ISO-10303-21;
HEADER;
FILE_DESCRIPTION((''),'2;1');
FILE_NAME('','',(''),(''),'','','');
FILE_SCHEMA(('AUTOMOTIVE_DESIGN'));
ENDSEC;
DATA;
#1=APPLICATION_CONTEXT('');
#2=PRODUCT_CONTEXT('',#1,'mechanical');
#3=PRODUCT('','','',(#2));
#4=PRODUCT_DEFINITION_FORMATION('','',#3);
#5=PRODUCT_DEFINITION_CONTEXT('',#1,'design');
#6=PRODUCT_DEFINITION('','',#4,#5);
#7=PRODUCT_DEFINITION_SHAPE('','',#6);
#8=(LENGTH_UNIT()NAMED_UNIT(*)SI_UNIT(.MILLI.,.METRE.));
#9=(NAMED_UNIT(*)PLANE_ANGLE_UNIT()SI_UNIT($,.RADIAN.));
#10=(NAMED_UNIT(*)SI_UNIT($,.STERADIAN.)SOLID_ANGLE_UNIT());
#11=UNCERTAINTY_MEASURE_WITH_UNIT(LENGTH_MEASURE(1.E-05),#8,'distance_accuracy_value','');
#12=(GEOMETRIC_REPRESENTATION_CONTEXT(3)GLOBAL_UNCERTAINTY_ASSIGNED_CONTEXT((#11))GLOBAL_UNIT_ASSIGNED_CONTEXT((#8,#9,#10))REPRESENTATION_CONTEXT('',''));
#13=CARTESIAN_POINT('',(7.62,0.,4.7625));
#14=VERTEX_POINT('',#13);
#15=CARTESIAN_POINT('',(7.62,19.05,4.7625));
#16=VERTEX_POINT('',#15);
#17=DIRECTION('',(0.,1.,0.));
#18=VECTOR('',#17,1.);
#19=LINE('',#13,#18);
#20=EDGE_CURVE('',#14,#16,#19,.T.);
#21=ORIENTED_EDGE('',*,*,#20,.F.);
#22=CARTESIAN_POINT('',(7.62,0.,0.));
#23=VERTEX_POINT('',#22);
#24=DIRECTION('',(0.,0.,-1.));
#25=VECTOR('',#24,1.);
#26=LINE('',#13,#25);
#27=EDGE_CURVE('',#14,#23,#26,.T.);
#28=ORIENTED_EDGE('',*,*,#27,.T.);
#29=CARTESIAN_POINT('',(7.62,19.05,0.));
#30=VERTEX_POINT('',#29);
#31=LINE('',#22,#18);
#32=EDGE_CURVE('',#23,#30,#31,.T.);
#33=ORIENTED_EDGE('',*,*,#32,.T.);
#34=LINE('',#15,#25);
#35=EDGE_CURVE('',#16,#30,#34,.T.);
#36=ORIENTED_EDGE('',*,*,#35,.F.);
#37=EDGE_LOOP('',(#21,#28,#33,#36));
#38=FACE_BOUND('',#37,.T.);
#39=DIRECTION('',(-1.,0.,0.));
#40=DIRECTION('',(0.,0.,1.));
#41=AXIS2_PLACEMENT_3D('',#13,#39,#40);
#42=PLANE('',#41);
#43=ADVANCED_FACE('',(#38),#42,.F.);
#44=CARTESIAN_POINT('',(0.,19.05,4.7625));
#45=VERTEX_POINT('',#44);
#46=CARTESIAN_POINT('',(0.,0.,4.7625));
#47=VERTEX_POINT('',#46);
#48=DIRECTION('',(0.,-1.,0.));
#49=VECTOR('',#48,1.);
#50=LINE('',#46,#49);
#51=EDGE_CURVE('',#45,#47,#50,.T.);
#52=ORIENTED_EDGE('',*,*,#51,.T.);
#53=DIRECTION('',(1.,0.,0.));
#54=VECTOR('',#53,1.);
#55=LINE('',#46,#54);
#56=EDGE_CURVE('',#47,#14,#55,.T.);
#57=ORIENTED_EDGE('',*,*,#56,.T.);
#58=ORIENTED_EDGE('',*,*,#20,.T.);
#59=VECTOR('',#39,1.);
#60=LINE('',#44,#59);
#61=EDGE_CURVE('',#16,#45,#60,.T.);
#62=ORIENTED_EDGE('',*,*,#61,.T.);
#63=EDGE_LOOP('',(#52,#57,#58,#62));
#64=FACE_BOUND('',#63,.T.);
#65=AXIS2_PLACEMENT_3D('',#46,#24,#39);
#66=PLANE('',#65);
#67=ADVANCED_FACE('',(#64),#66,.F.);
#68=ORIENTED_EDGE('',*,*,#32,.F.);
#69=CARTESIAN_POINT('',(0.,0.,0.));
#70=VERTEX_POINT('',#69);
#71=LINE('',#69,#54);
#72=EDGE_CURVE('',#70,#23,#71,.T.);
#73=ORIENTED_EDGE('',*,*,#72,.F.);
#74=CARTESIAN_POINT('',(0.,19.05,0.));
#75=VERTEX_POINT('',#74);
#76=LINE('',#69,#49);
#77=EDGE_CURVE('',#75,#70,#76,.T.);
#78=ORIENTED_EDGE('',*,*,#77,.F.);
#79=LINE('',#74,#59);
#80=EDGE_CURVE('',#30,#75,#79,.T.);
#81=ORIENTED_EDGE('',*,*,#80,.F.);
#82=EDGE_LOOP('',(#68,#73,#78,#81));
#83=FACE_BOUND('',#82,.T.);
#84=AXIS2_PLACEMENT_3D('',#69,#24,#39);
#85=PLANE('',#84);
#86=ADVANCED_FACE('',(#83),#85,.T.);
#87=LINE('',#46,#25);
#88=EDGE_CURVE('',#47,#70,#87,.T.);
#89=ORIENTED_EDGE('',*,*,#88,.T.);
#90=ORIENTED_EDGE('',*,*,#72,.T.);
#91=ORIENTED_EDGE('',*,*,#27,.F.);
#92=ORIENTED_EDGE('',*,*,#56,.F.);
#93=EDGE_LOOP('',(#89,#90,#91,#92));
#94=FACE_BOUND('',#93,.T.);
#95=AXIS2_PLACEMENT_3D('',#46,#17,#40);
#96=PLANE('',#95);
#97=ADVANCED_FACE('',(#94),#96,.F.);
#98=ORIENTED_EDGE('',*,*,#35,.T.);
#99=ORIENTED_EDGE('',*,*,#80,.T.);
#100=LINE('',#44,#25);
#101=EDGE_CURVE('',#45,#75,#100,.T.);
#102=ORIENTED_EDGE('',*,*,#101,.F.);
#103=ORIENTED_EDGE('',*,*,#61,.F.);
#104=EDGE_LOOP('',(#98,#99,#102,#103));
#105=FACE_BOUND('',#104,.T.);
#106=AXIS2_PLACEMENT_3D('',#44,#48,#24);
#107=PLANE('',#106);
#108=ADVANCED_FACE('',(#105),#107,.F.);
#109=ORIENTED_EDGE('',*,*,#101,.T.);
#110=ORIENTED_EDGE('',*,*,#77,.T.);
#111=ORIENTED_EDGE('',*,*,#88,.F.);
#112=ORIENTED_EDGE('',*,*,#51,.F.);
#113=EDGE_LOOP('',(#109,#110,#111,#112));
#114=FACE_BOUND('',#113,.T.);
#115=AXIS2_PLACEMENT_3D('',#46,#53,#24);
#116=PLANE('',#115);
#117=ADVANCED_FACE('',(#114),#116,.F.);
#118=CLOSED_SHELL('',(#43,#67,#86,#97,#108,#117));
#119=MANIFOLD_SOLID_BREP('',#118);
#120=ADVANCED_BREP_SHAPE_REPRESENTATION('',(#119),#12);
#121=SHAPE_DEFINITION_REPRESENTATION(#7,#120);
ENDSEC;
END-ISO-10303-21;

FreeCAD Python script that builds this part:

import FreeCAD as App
import Part
import Sketcher
Q = App.Units.Quantity


def add_polygon(sketch, points):
    """Adds a closed chain of lines whose ends are joined by coincident constraints."""
    first, n = sketch.GeometryCount, len(points)
    for a, b in zip(points, points[1:] + points[:1]):
        sketch.addGeometry(Part.LineSegment(App.Vector(*a, 0), App.Vector(*b, 0)), False)
    for i in range(n):
        sketch.addConstraint(Sketcher.Constraint("Coincident", first + i, 2, first + (i + 1) % n, 1))

doc = App.newDocument("Part")
body = doc.addObject("PartDesign::Body", "Body")

# Sketch on XY plane
sketch1 = doc.addObject("Sketcher::SketchObject", "Sketch")
body.addObject(sketch1)
sketch1.AttachmentSupport = (doc.XY_Plane, [""])
sketch1.MapMode = "FlatFace"
add_polygon(sketch1, [(0, 19), (0, 0), (8, 0), (8, 19)])  # lines 0-3
sketch1.addConstraint(Sketcher.Constraint("Vertical", 0))
sketch1.addConstraint(Sketcher.Constraint("Horizontal", 1))
sketch1.addConstraint(Sketcher.Constraint("Vertical", 2))
sketch1.addConstraint(Sketcher.Constraint("Horizontal", 3))
sketch1.addConstraint(Sketcher.Constraint("Coincident", 0, 2, -1, 1))
sketch1.addConstraint(Sketcher.Constraint("DistanceX", 1, 1, 1, 2, Q("0.3 in")))
sketch1.addConstraint(Sketcher.Constraint("DistanceY", 0, 2, 0, 1, Q("0.75 in")))
pad1 = doc.addObject("PartDesign::Pad", "Pad")
body.addObject(pad1)
pad1.Profile = sketch1
pad1.Length = Q("0.1875 in")

doc.recompute()
